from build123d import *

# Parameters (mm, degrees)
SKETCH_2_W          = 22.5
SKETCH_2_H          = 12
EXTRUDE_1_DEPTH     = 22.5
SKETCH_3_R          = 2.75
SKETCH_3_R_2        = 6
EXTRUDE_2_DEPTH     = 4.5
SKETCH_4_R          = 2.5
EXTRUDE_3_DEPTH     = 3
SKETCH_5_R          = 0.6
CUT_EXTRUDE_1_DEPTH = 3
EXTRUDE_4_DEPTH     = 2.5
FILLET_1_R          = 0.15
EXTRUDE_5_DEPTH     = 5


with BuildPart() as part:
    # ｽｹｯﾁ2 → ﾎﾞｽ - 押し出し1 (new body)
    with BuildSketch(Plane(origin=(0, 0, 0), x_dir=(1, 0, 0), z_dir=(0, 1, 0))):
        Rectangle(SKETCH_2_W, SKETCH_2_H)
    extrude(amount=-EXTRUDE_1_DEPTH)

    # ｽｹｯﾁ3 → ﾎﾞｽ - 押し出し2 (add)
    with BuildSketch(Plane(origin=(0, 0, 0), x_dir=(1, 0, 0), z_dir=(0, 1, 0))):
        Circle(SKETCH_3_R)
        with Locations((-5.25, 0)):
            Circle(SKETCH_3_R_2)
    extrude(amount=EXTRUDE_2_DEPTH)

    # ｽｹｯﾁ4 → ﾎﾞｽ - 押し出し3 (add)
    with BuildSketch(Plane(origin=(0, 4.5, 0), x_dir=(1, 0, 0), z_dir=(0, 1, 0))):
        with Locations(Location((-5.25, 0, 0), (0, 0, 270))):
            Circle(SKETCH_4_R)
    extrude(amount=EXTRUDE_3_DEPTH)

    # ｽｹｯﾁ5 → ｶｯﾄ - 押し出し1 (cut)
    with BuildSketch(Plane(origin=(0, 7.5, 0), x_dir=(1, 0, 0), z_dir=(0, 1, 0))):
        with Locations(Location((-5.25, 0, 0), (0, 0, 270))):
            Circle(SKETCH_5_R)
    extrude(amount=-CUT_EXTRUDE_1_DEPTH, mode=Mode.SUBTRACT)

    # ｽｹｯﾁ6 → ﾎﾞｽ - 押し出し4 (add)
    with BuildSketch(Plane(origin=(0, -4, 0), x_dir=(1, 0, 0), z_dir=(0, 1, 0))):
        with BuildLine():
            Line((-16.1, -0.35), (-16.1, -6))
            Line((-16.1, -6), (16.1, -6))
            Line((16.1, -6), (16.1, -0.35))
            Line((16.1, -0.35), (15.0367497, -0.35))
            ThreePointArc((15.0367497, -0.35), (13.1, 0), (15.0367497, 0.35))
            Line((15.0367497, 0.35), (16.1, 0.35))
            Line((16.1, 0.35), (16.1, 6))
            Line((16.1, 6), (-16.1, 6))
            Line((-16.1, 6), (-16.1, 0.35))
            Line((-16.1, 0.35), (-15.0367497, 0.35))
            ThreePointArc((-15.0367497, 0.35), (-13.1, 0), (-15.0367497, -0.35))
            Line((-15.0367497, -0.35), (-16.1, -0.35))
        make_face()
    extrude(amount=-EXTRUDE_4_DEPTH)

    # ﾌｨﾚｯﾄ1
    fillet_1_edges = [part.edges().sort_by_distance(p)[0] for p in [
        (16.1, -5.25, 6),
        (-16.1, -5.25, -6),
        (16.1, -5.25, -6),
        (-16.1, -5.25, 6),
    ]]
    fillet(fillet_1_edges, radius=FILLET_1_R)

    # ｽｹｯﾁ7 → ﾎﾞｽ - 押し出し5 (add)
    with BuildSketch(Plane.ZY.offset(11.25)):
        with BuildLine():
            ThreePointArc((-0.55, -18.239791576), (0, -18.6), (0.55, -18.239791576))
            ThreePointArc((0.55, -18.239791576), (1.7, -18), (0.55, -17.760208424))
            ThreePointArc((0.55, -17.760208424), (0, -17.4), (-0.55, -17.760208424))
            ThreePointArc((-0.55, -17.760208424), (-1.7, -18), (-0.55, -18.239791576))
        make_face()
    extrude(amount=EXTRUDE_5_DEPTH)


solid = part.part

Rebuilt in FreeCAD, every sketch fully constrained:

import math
import FreeCAD as App
import Part
import Sketcher


def edges_at(feature, points):
    """Names of the edges that pass closest to the given points."""
    edges = feature.Shape.Edges
    near = lambda p: min(range(len(edges)), key=lambda i: edges[i].distToShape(Part.Vertex(*p))[0])
    return sorted({f"Edge{near(p) + 1}" for p in points})


def add_polygon(sketch, points):
    """Adds a closed chain of lines whose ends are joined by coincident constraints."""
    first, n = sketch.GeometryCount, len(points)
    for a, b in zip(points, points[1:] + points[:1]):
        sketch.addGeometry(Part.LineSegment(App.Vector(*a, 0), App.Vector(*b, 0)), False)
    for i in range(n):
        sketch.addConstraint(Sketcher.Constraint("Coincident", first + i, 2, first + (i + 1) % n, 1))

doc = App.newDocument("Part")
params = doc.addObject("Spreadsheet::Sheet", "Params")
for row, (alias, value) in enumerate([
    ("sketch1_height", "12 mm"),
    ("sketch1_width", "22.5 mm"),
    ("pad1_length", "22.5 mm"),
    ("sketch2_radius", "6 mm"),
    ("sketch2_radius2", "2.75 mm"),
    ("pad2_length", "4.5 mm"),
    ("sketch3_diameter", "5 mm"),
    ("pad3_length", "3 mm"),
    ("sketch4_diameter", "1.2 mm"),
    ("pocket1_length", "3 mm"),
    ("sketch5_radius", "1 mm"),
    ("sketch5_width", "32.2 mm"),
    ("sketch5_height", "5.65 mm"),
    ("pad4_length", "2.5 mm"),
    ("fillet_radius", "0.15 mm"),
    ("sketch6_radius", "0.6 mm"),
    ("pad5_length", "5 mm"),
], start=1):
    params.set(f"A{row}", alias)
    params.set(f"B{row}", "=" + value)
    params.setAlias(f"B{row}", alias)

body = doc.addObject("PartDesign::Body", "Body")

# Sketch on XZ plane
sketch1 = body.newObject("Sketcher::SketchObject", "Sketch")
sketch1.AttachmentSupport = (doc.getObject("XZ_Plane"), [""])
sketch1.MapMode = "FlatFace"
add_polygon(sketch1, [(-11, -6), (-11, 6), (11, 6), (11, -6)])  # lines 0-3
sketch1.addConstraint(Sketcher.Constraint("Vertical", 0))
sketch1.addConstraint(Sketcher.Constraint("Horizontal", 1))
sketch1.addConstraint(Sketcher.Constraint("Vertical", 2))
sketch1.addConstraint(Sketcher.Constraint("Horizontal", 3))
sketch1.addConstraint(Sketcher.Constraint("Symmetric", 0, 2, 2, 2, -1, 1))
sketch1.addConstraint(Sketcher.Constraint("DistanceY", 0, 1, 0, 2, 12.0))
sketch1.addConstraint(Sketcher.Constraint("DistanceX", 1, 1, 1, 2, 22.5))
sketch1.setExpression("Constraints[9]", "Params.sketch1_height")
sketch1.setExpression("Constraints[10]", "Params.sketch1_width")
pad1 = body.newObject("PartDesign::Pad", "Pad")
pad1.Profile = sketch1
pad1.setExpression("Length", "Params.pad1_length")

# Sketch on XZ plane
sketch2 = body.newObject("Sketcher::SketchObject", "Sketch001")
sketch2.AttachmentSupport = (doc.getObject("XZ_Plane"), [""])
sketch2.MapMode = "FlatFace"
sketch2.addGeometry(Part.ArcOfCircle(Part.Circle(App.Vector(-5.2, 0, 0), App.Vector(0, 0, 1), 6), math.radians(27), math.radians(333)), False)
sketch2.addGeometry(Part.ArcOfCircle(Part.Circle(App.Vector(0, 0, 0), App.Vector(0, 0, 1), 2.8), math.radians(-88), math.radians(88)), False)
sketch2.addConstraint(Sketcher.Constraint("Coincident", 0, 1, 1, 2))
sketch2.addConstraint(Sketcher.Constraint("Coincident", 1, 1, 0, 2))
sketch2.addConstraint(Sketcher.Constraint("Coincident", 1, 3, -1, 1))
sketch2.addConstraint(Sketcher.Constraint("PointOnObject", 0, 3, -1))
sketch2.addConstraint(Sketcher.Constraint("Radius", 0, 6.0))
sketch2.addConstraint(Sketcher.Constraint("Radius", 1, 2.75))
sketch2.addConstraint(Sketcher.Constraint("DistanceX", 0, 3, -1, 1, 5.25))
sketch2.setExpression("Constraints[4]", "Params.sketch2_radius")
sketch2.setExpression("Constraints[5]", "Params.sketch2_radius2")
pad2 = body.newObject("PartDesign::Pad", "Pad001")
pad2.Profile = sketch2
pad2.setExpression("Length", "Params.pad2_length")
pad2.Reversed = True

# Sketch on XZ plane
sketch3 = body.newObject("Sketcher::SketchObject", "Sketch002")
sketch3.AttachmentSupport = (doc.getObject("XZ_Plane"), [""])
sketch3.MapMode = "FlatFace"
sketch3.AttachmentOffset = App.Placement(App.Vector(0, 0, -4.5), App.Rotation())
sketch3.addGeometry(Part.Circle(App.Vector(-5.2, 0, 0), App.Vector(0, 0, 1), 2.5), False)
sketch3.addConstraint(Sketcher.Constraint("PointOnObject", 0, 3, -1))
sketch3.addConstraint(Sketcher.Constraint("Diameter", 0, 5.0))
sketch3.addConstraint(Sketcher.Constraint("DistanceX", 0, 3, -1, 1, 5.25))
sketch3.setExpression("Constraints[1]", "Params.sketch3_diameter")
pad3 = body.newObject("PartDesign::Pad", "Pad002")
pad3.Profile = sketch3
pad3.setExpression("Length", "Params.pad3_length")
pad3.Reversed = True

# Sketch on XZ plane
sketch4 = body.newObject("Sketcher::SketchObject", "Sketch003")
sketch4.AttachmentSupport = (doc.getObject("XZ_Plane"), [""])
sketch4.MapMode = "FlatFace"
sketch4.AttachmentOffset = App.Placement(App.Vector(0, 0, -7.5), App.Rotation())
sketch4.addGeometry(Part.Circle(App.Vector(-5.2, 0, 0), App.Vector(0, 0, 1), 0.6), False)
sketch4.addConstraint(Sketcher.Constraint("PointOnObject", 0, 3, -1))
sketch4.addConstraint(Sketcher.Constraint("Diameter", 0, 1.2))
sketch4.addConstraint(Sketcher.Constraint("DistanceX", 0, 3, -1, 1, 5.25))
sketch4.setExpression("Constraints[1]", "Params.sketch4_diameter")
pocket1 = body.newObject("PartDesign::Pocket", "Pocket")
pocket1.Profile = sketch4
pocket1.setExpression("Length", "Params.pocket1_length")
pocket1.Reversed = True

# Sketch on XZ plane
sketch5 = body.newObject("Sketcher::SketchObject", "Sketch004")
sketch5.AttachmentSupport = (doc.getObject("XZ_Plane"), [""])
sketch5.MapMode = "FlatFace"
sketch5.AttachmentOffset = App.Placement(App.Vector(0, 0, 4), App.Rotation())
sketch5.addGeometry(Part.LineSegment(App.Vector(-16.1, 0.3, 0), App.Vector(-16.1, 6, 0)), False)
sketch5.addGeometry(Part.LineSegment(App.Vector(-16.1, 6, 0), App.Vector(16.1, 6, 0)), False)
sketch5.addGeometry(Part.LineSegment(App.Vector(16.1, 6, 0), App.Vector(16.1, 0.3, 0)), False)
sketch5.addGeometry(Part.LineSegment(App.Vector(16.1, 0.3, 0), App.Vector(15, 0.3, 0)), False)
sketch5.addGeometry(Part.ArcOfCircle(Part.Circle(App.Vector(14.1, 0, 0), App.Vector(0, 0, 1), 1), math.radians(20), math.radians(340)), False)
sketch5.addGeometry(Part.LineSegment(App.Vector(15, -0.3, 0), App.Vector(16.1, -0.3, 0)), False)
sketch5.addGeometry(Part.LineSegment(App.Vector(16.1, -0.3, 0), App.Vector(16.1, -6, 0)), False)
sketch5.addGeometry(Part.LineSegment(App.Vector(16.1, -6, 0), App.Vector(-16.1, -6, 0)), False)
sketch5.addGeometry(Part.LineSegment(App.Vector(-16.1, -6, 0), App.Vector(-16.1, -0.3, 0)), False)
sketch5.addGeometry(Part.LineSegment(App.Vector(-16.1, -0.3, 0), App.Vector(-15, -0.3, 0)), False)
sketch5.addGeometry(Part.ArcOfCircle(Part.Circle(App.Vector(-14.1, 0, 0), App.Vector(0, 0, 1), 1), math.radians(-160), math.radians(160)), False)
sketch5.addGeometry(Part.LineSegment(App.Vector(-15, 0.3, 0), App.Vector(-16.1, 0.3, 0)), False)
sketch5.addConstraint(Sketcher.Constraint("Coincident", 0, 2, 1, 1))
sketch5.addConstraint(Sketcher.Constraint("Coincident", 1, 2, 2, 1))
sketch5.addConstraint(Sketcher.Constraint("Coincident", 2, 2, 3, 1))
sketch5.addConstraint(Sketcher.Constraint("Coincident", 3, 2, 4, 1))
sketch5.addConstraint(Sketcher.Constraint("Coincident", 4, 2, 5, 1))
sketch5.addConstraint(Sketcher.Constraint("Coincident", 5, 2, 6, 1))
sketch5.addConstraint(Sketcher.Constraint("Coincident", 6, 2, 7, 1))
sketch5.addConstraint(Sketcher.Constraint("Coincident", 7, 2, 8, 1))
sketch5.addConstraint(Sketcher.Constraint("Coincident", 8, 2, 9, 1))
sketch5.addConstraint(Sketcher.Constraint("Coincident", 9, 2, 10, 1))
sketch5.addConstraint(Sketcher.Constraint("Coincident", 10, 2, 11, 1))
sketch5.addConstraint(Sketcher.Constraint("Coincident", 11, 2, 0, 1))
sketch5.addConstraint(Sketcher.Constraint("Vertical", 0))
sketch5.addConstraint(Sketcher.Constraint("Horizontal", 1))
sketch5.addConstraint(Sketcher.Constraint("Vertical", 2))
sketch5.addConstraint(Sketcher.Constraint("Horizontal", 3))
sketch5.addConstraint(Sketcher.Constraint("Horizontal", 5))
sketch5.addConstraint(Sketcher.Constraint("Vertical", 6))
sketch5.addConstraint(Sketcher.Constraint("Horizontal", 7))
sketch5.addConstraint(Sketcher.Constraint("Vertical", 8))
sketch5.addConstraint(Sketcher.Constraint("Horizontal", 9))
sketch5.addConstraint(Sketcher.Constraint("Horizontal", 11))
sketch5.addConstraint(Sketcher.Constraint("Equal", 4, 10))
sketch5.addConstraint(Sketcher.Constraint("Symmetric", 4, 3, 10, 3, -1, 1))
sketch5.addConstraint(Sketcher.Constraint("Symmetric", 0, 2, 6, 2, -1, 1))
sketch5.addConstraint(Sketcher.Constraint("Symmetric", 2, 2, 8, 2, -1, 1))
sketch5.addConstraint(Sketcher.Constraint("Symmetric", 5, 2, 8, 2, -2))
sketch5.addConstraint(Sketcher.Constraint("Symmetric", 3, 2, 10, 2, -2))
sketch5.addConstraint(Sketcher.Constraint("Radius", 4, 1.0))
sketch5.addConstraint(Sketcher.Constraint("DistanceX", 1, 1, 1, 2, 32.2))
sketch5.addConstraint(Sketcher.Constraint("DistanceY", -1, 1, 0, 2, 6.0))
sketch5.addConstraint(Sketcher.Constraint("DistanceX", 0, 2, 10, 3, 2.0))
sketch5.addConstraint(Sketcher.Constraint("DistanceY", 0, 1, 0, 2, 5.65))
sketch5.setExpression("Constraints[28]", "Params.sketch5_radius")
sketch5.setExpression("Constraints[29]", "Params.sketch5_width")
sketch5.setExpression("Constraints[32]", "Params.sketch5_height")
pad4 = body.newObject("PartDesign::Pad", "Pad003")
pad4.Profile = sketch5
pad4.setExpression("Length", "Params.pad4_length")
doc.recompute()

fillet = body.newObject("PartDesign::Fillet", "Fillet")
fillet.Base = (pad4, edges_at(pad4, [
    (16.1, -5.25, 6),
    (-16.1, -5.25, -6),
    (16.1, -5.25, -6),
    (-16.1, -5.25, 6),
]))
fillet.setExpression("Radius", "Params.fillet_radius")

# Sketch on YZ plane
sketch6 = body.newObject("Sketcher::SketchObject", "Sketch005")
sketch6.AttachmentSupport = (doc.getObject("YZ_Plane"), [""])
sketch6.MapMode = "FlatFace"
sketch6.AttachmentOffset = App.Placement(App.Vector(0, 0, -11.25), App.Rotation())
sketch6.addGeometry(Part.ArcOfCircle(Part.Circle(App.Vector(-18, 0, 0), App.Vector(0, 0, 1), 0.6), math.radians(114), math.radians(246)), False)
sketch6.addGeometry(Part.ArcOfCircle(Part.Circle(App.Vector(-18, 1.1, 0), App.Vector(0, 0, 1), 0.6), math.radians(-66), math.radians(246)), False)
sketch6.addGeometry(Part.ArcOfCircle(Part.Circle(App.Vector(-18, 0, 0), App.Vector(0, 0, 1), 0.6), math.radians(-66), math.radians(66)), False)
sketch6.addGeometry(Part.ArcOfCircle(Part.Circle(App.Vector(-18, -1.1, 0), App.Vector(0, 0, 1), 0.6), math.radians(114), math.radians(426)), False)
sketch6.addConstraint(Sketcher.Constraint("Coincident", 0, 1, 1, 2))
sketch6.addConstraint(Sketcher.Constraint("Coincident", 1, 1, 2, 2))
sketch6.addConstraint(Sketcher.Constraint("Coincident", 2, 1, 3, 2))
sketch6.addConstraint(Sketcher.Constraint("Coincident", 3, 1, 0, 2))
sketch6.addConstraint(Sketcher.Constraint("Coincident", 2, 3, 0, 3))
sketch6.addConstraint(Sketcher.Constraint("Equal", 0, 1))
sketch6.addConstraint(Sketcher.Constraint("Equal", 1, 2))
sketch6.addConstraint(Sketcher.Constraint("Equal", 2, 3))
sketch6.addConstraint(Sketcher.Constraint("Symmetric", 1, 3, 3, 3, -1))
sketch6.addConstraint(Sketcher.Constraint("PointOnObject", 0, 3, -1))
sketch6.addConstraint(Sketcher.Constraint("Horizontal", 0, 1, 1, 1))
sketch6.addConstraint(Sketcher.Constraint("Radius", 0, 0.6))
sketch6.addConstraint(Sketcher.Constraint("DistanceX", 0, 3, -1, 1, 18.0))
sketch6.addConstraint(Sketcher.Constraint("DistanceY", -1, 1, 1, 3, 1.1))
sketch6.setExpression("Constraints[11]", "Params.sketch6_radius")
pad5 = body.newObject("PartDesign::Pad", "Pad004")
pad5.Profile = sketch6
pad5.setExpression("Length", "Params.pad5_length")
pad5.Reversed = True

doc.recompute()
